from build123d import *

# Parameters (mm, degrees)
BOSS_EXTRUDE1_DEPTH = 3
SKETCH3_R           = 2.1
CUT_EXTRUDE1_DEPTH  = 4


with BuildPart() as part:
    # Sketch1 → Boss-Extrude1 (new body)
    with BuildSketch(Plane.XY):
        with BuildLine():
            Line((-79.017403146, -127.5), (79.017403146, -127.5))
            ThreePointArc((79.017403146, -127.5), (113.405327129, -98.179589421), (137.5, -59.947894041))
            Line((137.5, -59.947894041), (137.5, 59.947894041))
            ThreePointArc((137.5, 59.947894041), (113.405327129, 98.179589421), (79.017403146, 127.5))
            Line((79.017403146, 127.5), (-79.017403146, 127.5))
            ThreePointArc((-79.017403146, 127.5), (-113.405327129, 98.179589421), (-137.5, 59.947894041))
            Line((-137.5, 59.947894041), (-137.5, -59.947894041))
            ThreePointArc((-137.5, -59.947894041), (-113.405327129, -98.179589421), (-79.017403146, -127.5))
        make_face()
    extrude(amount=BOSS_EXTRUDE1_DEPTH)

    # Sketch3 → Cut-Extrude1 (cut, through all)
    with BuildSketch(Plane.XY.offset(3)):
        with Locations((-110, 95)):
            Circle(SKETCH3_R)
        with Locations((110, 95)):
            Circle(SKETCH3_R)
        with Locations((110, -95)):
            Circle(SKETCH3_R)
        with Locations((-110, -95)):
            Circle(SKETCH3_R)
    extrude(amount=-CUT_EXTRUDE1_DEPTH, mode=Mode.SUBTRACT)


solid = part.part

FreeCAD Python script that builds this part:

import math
import FreeCAD as App
import Part
import Sketcher
Q = App.Units.Quantity

doc = App.newDocument("Part")
params = doc.addObject("Spreadsheet::Sheet", "Params")
for row, (alias, value) in enumerate([
    ("sketch1_radius", "150 mm"),
    ("pad1_length", "3 mm"),
    ("sketch2_diameter", "4.2 mm"),
], start=1):
    params.set(f"A{row}", alias)
    params.set(f"B{row}", "=" + value)
    params.setAlias(f"B{row}", alias)

body = doc.addObject("PartDesign::Body", "Body")

# Sketch on XY plane
sketch1 = body.newObject("Sketcher::SketchObject", "Sketch")
sketch1.AttachmentSupport = (doc.getObject("XY_Plane"), [""])
sketch1.MapMode = "FlatFace"
sketch1.addGeometry(Part.LineSegment(App.Vector(-79, -128, 0), App.Vector(79, -128, 0)), False)
sketch1.addGeometry(Part.ArcOfCircle(Part.Circle(App.Vector(0, 0, 0), App.Vector(0, 0, 1), 150), math.radians(-58), math.radians(-24)), False)
sketch1.addGeometry(Part.LineSegment(App.Vector(138, -60, 0), App.Vector(138, 60, 0)), False)
sketch1.addGeometry(Part.ArcOfCircle(Part.Circle(App.Vector(0, 0, 0), App.Vector(0, 0, 1), 150), math.radians(24), math.radians(58)), False)
sketch1.addGeometry(Part.LineSegment(App.Vector(79, 128, 0), App.Vector(-79, 128, 0)), False)
sketch1.addGeometry(Part.ArcOfCircle(Part.Circle(App.Vector(0, 0, 0), App.Vector(0, 0, 1), 150), math.radians(122), math.radians(156)), False)
sketch1.addGeometry(Part.LineSegment(App.Vector(-138, 60, 0), App.Vector(-138, -60, 0)), False)
sketch1.addGeometry(Part.ArcOfCircle(Part.Circle(App.Vector(0, 0, 0), App.Vector(0, 0, 1), 150), math.radians(-156), math.radians(-122)), False)
sketch1.addConstraint(Sketcher.Constraint("Coincident", 0, 2, 1, 1))
sketch1.addConstraint(Sketcher.Constraint("Coincident", 1, 2, 2, 1))
sketch1.addConstraint(Sketcher.Constraint("Coincident", 2, 2, 3, 1))
sketch1.addConstraint(Sketcher.Constraint("Coincident", 3, 2, 4, 1))
sketch1.addConstraint(Sketcher.Constraint("Coincident", 4, 2, 5, 1))
sketch1.addConstraint(Sketcher.Constraint("Coincident", 5, 2, 6, 1))
sketch1.addConstraint(Sketcher.Constraint("Coincident", 6, 2, 7, 1))
sketch1.addConstraint(Sketcher.Constraint("Coincident", 7, 2, 0, 1))
sketch1.addConstraint(Sketcher.Constraint("Horizontal", 0))
sketch1.addConstraint(Sketcher.Constraint("Vertical", 2))
sketch1.addConstraint(Sketcher.Constraint("Horizontal", 4))
sketch1.addConstraint(Sketcher.Constraint("Vertical", 6))
sketch1.addConstraint(Sketcher.Constraint("Coincident", 1, 3, -1, 1))
sketch1.addConstraint(Sketcher.Constraint("Coincident", 3, 3, -1, 1))
sketch1.addConstraint(Sketcher.Constraint("Coincident", 5, 3, -1, 1))
sketch1.addConstraint(Sketcher.Constraint("Coincident", 7, 3, -1, 1))
sketch1.addConstraint(Sketcher.Constraint("Equal", 1, 3))
sketch1.addConstraint(Sketcher.Constraint("Equal", 3, 5))
sketch1.addConstraint(Sketcher.Constraint("Equal", 5, 7))
sketch1.addConstraint(Sketcher.Constraint("Horizontal", 2, 2, 5, 2))
sketch1.addConstraint(Sketcher.Constraint("Vertical", 0, 2, 3, 2))
sketch1.addConstraint(Sketcher.Constraint("Radius", 1, Q("150 mm")))
sketch1.addConstraint(Sketcher.Constraint("DistanceY", 0, 2, -1, 1, Q("127.5 mm")))
sketch1.addConstraint(Sketcher.Constraint("DistanceX", -1, 1, 1, 2, Q("137.5 mm")))
sketch1.setExpression("Constraints[21]", "Params.sketch1_radius")
pad1 = body.newObject("PartDesign::Pad", "Pad")
pad1.Profile = sketch1
pad1.setExpression("Length", "Params.pad1_length")

# Sketch on XY plane
sketch2 = body.newObject("Sketcher::SketchObject", "Sketch001")
sketch2.AttachmentSupport = (doc.getObject("XY_Plane"), [""])
sketch2.MapMode = "FlatFace"
sketch2.AttachmentOffset = App.Placement(App.Vector(0, 0, 3), App.Rotation())
sketch2.addGeometry(Part.Circle(App.Vector(-110, 95, 0), App.Vector(0, 0, 1), 2.1), False)
sketch2.addGeometry(Part.Circle(App.Vector(110, 95, 0), App.Vector(0, 0, 1), 2.1), False)
sketch2.addGeometry(Part.Circle(App.Vector(110, -95, 0), App.Vector(0, 0, 1), 2.1), False)
sketch2.addGeometry(Part.Circle(App.Vector(-110, -95, 0), App.Vector(0, 0, 1), 2.1), False)
sketch2.addConstraint(Sketcher.Constraint("Equal", 0, 1))
sketch2.addConstraint(Sketcher.Constraint("Equal", 1, 2))
sketch2.addConstraint(Sketcher.Constraint("Equal", 2, 3))
sketch2.addConstraint(Sketcher.Constraint("Symmetric", 0, 3, 2, 3, -1, 1))
sketch2.addConstraint(Sketcher.Constraint("Symmetric", 1, 3, 3, 3, -1, 1))
sketch2.addConstraint(Sketcher.Constraint("Symmetric", 0, 3, 1, 3, -2))
sketch2.addConstraint(Sketcher.Constraint("Diameter", 0, Q("4.2 mm")))
sketch2.addConstraint(Sketcher.Constraint("DistanceX", 0, 3, -1, 1, Q("110 mm")))
sketch2.addConstraint(Sketcher.Constraint("DistanceY", -1, 1, 0, 3, Q("95 mm")))
sketch2.setExpression("Constraints[6]", "Params.sketch2_diameter")
pocket1 = body.newObject("PartDesign::Pocket", "Pocket")
pocket1.Profile = sketch2
pocket1.Type = "ThroughAll"

doc.recompute()
